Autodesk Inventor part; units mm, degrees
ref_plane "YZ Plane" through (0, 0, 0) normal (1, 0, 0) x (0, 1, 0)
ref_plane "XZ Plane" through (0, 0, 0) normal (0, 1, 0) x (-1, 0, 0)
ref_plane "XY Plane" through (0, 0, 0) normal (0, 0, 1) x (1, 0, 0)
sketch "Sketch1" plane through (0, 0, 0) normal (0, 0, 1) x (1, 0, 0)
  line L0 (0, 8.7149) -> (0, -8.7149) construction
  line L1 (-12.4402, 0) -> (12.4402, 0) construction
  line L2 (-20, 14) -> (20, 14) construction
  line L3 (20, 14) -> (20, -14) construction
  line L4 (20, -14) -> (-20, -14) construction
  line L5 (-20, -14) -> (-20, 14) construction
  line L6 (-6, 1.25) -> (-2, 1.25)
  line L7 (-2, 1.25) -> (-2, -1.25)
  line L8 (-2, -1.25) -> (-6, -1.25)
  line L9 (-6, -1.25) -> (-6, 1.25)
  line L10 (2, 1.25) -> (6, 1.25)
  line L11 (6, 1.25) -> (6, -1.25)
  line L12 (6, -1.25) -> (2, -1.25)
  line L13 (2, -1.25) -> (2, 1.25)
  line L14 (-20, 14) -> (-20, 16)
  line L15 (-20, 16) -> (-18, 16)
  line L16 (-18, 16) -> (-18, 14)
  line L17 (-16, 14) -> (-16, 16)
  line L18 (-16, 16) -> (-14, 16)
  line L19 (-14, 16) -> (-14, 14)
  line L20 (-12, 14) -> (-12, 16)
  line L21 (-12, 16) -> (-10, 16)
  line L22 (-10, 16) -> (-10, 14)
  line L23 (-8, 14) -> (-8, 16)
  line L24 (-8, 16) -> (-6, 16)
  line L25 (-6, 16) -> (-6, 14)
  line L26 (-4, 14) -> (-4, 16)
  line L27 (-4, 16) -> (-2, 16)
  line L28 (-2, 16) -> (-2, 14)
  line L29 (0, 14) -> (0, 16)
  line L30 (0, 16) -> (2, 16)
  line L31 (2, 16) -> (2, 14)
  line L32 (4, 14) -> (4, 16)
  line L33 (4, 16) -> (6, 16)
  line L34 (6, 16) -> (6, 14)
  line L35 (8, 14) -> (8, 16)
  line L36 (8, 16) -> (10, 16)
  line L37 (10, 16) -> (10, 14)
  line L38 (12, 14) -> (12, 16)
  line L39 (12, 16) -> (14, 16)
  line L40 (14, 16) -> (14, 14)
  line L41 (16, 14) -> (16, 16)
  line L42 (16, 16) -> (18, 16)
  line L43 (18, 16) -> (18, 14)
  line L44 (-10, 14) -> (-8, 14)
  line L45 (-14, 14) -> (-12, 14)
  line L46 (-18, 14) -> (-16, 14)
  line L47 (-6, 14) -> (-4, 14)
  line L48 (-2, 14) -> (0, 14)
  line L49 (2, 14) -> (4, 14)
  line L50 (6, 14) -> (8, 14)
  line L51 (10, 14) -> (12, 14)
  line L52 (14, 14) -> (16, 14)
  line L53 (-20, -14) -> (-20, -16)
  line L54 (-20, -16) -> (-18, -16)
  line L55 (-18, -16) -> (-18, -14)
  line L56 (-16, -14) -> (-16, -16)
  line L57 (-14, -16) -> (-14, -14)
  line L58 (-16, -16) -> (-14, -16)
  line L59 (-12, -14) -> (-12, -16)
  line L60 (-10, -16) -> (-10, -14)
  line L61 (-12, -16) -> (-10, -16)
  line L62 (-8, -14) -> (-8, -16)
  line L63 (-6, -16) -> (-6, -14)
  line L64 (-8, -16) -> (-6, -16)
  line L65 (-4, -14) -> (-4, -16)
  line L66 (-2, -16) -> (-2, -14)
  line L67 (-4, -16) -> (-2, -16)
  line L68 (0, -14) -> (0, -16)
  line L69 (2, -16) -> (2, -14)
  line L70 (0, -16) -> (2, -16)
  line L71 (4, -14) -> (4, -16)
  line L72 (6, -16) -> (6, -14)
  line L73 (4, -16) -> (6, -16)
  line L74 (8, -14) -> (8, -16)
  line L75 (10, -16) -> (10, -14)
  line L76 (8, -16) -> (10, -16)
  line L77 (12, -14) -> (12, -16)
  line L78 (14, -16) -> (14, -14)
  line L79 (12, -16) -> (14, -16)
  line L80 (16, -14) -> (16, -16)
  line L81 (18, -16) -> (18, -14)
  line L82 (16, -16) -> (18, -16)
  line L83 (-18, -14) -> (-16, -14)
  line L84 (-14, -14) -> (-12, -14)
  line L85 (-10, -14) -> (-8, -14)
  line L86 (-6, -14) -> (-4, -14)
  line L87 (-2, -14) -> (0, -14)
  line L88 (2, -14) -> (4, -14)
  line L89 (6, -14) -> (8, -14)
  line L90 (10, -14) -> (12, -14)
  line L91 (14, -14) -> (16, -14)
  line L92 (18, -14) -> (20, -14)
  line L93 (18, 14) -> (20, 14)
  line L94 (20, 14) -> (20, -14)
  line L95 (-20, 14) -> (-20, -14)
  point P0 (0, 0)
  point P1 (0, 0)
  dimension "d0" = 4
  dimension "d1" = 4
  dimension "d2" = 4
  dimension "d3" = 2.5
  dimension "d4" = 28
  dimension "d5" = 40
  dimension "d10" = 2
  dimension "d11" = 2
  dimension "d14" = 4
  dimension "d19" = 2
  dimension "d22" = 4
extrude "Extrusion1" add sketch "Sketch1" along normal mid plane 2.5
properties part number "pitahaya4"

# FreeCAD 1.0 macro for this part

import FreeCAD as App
import Part
import Sketcher
Q = App.Units.Quantity

doc = App.newDocument("Part")
params = doc.addObject("Spreadsheet::Sheet", "Params")
for row, (alias, value) in enumerate([
    ("sketch1_width", "2 mm"),
    ("sketch1_height", "28 mm"),
    ("sketch1_height2", "2.5 mm"),
    ("pad1_length", "2.5 mm"),
], start=1):
    params.set(f"A{row}", alias)
    params.set(f"B{row}", "=" + value)
    params.setAlias(f"B{row}", alias)

body = doc.addObject("PartDesign::Body", "Body")

# Sketch on XY plane
sketch1 = body.newObject("Sketcher::SketchObject", "Sketch")
sketch1.AttachmentSupport = (doc.getObject("XY_Plane"), [""])
sketch1.MapMode = "FlatFace"
sketch1.addGeometry([
    Part.LineSegment(App.Vector(-20, 16, 0), App.Vector(-20, -16, 0)),  # 0
    Part.LineSegment(App.Vector(-20, -16, 0), App.Vector(-18, -16, 0)),  # 1
    Part.LineSegment(App.Vector(-18, -16, 0), App.Vector(-18, -14, 0)),  # 2
    Part.LineSegment(App.Vector(-18, -14, 0), App.Vector(-16, -14, 0)),  # 3
    Part.LineSegment(App.Vector(-16, -14, 0), App.Vector(-16, -16, 0)),  # 4
    Part.LineSegment(App.Vector(-16, -16, 0), App.Vector(-14, -16, 0)),  # 5
    Part.LineSegment(App.Vector(-14, -16, 0), App.Vector(-14, -14, 0)),  # 6
    Part.LineSegment(App.Vector(-14, -14, 0), App.Vector(-12, -14, 0)),  # 7
    Part.LineSegment(App.Vector(-12, -14, 0), App.Vector(-12, -16, 0)),  # 8
    Part.LineSegment(App.Vector(-12, -16, 0), App.Vector(-10, -16, 0)),  # 9
    Part.LineSegment(App.Vector(-10, -16, 0), App.Vector(-10, -14, 0)),  # 10
    Part.LineSegment(App.Vector(-10, -14, 0), App.Vector(-8, -14, 0)),  # 11
    Part.LineSegment(App.Vector(-8, -14, 0), App.Vector(-8, -16, 0)),  # 12
    Part.LineSegment(App.Vector(-8, -16, 0), App.Vector(-6, -16, 0)),  # 13
    Part.LineSegment(App.Vector(-6, -16, 0), App.Vector(-6, -14, 0)),  # 14
    Part.LineSegment(App.Vector(-6, -14, 0), App.Vector(-4, -14, 0)),  # 15
    Part.LineSegment(App.Vector(-4, -14, 0), App.Vector(-4, -16, 0)),  # 16
    Part.LineSegment(App.Vector(-4, -16, 0), App.Vector(-2, -16, 0)),  # 17
    Part.LineSegment(App.Vector(-2, -16, 0), App.Vector(-2, -14, 0)),  # 18
    Part.LineSegment(App.Vector(-2, -14, 0), App.Vector(0, -14, 0)),  # 19
    Part.LineSegment(App.Vector(0, -14, 0), App.Vector(0, -16, 0)),  # 20
    Part.LineSegment(App.Vector(0, -16, 0), App.Vector(2, -16, 0)),  # 21
    Part.LineSegment(App.Vector(2, -16, 0), App.Vector(2, -14, 0)),  # 22
    Part.LineSegment(App.Vector(2, -14, 0), App.Vector(4, -14, 0)),  # 23
    Part.LineSegment(App.Vector(4, -14, 0), App.Vector(4, -16, 0)),  # 24
    Part.LineSegment(App.Vector(4, -16, 0), App.Vector(6, -16, 0)),  # 25
    Part.LineSegment(App.Vector(6, -16, 0), App.Vector(6, -14, 0)),  # 26
    Part.LineSegment(App.Vector(6, -14, 0), App.Vector(8, -14, 0)),  # 27
    Part.LineSegment(App.Vector(8, -14, 0), App.Vector(8, -16, 0)),  # 28
    Part.LineSegment(App.Vector(8, -16, 0), App.Vector(10, -16, 0)),  # 29
    Part.LineSegment(App.Vector(10, -16, 0), App.Vector(10, -14, 0)),  # 30
    Part.LineSegment(App.Vector(10, -14, 0), App.Vector(12, -14, 0)),  # 31
    Part.LineSegment(App.Vector(12, -14, 0), App.Vector(12, -16, 0)),  # 32
    Part.LineSegment(App.Vector(12, -16, 0), App.Vector(14, -16, 0)),  # 33
    Part.LineSegment(App.Vector(14, -16, 0), App.Vector(14, -14, 0)),  # 34
    Part.LineSegment(App.Vector(14, -14, 0), App.Vector(16, -14, 0)),  # 35
    Part.LineSegment(App.Vector(16, -14, 0), App.Vector(16, -16, 0)),  # 36
    Part.LineSegment(App.Vector(16, -16, 0), App.Vector(18, -16, 0)),  # 37
    Part.LineSegment(App.Vector(18, -16, 0), App.Vector(18, -14, 0)),  # 38
    Part.LineSegment(App.Vector(18, -14, 0), App.Vector(20, -14, 0)),  # 39
    Part.LineSegment(App.Vector(20, -14, 0), App.Vector(20, 14, 0)),  # 40
    Part.LineSegment(App.Vector(20, 14, 0), App.Vector(18, 14, 0)),  # 41
    Part.LineSegment(App.Vector(18, 14, 0), App.Vector(18, 16, 0)),  # 42
    Part.LineSegment(App.Vector(18, 16, 0), App.Vector(16, 16, 0)),  # 43
    Part.LineSegment(App.Vector(16, 16, 0), App.Vector(16, 14, 0)),  # 44
    Part.LineSegment(App.Vector(16, 14, 0), App.Vector(14, 14, 0)),  # 45
    Part.LineSegment(App.Vector(14, 14, 0), App.Vector(14, 16, 0)),  # 46
    Part.LineSegment(App.Vector(14, 16, 0), App.Vector(12, 16, 0)),  # 47
    Part.LineSegment(App.Vector(12, 16, 0), App.Vector(12, 14, 0)),  # 48
    Part.LineSegment(App.Vector(12, 14, 0), App.Vector(10, 14, 0)),  # 49
    Part.LineSegment(App.Vector(10, 14, 0), App.Vector(10, 16, 0)),  # 50
    Part.LineSegment(App.Vector(10, 16, 0), App.Vector(8, 16, 0)),  # 51
    Part.LineSegment(App.Vector(8, 16, 0), App.Vector(8, 14, 0)),  # 52
    Part.LineSegment(App.Vector(8, 14, 0), App.Vector(6, 14, 0)),  # 53
    Part.LineSegment(App.Vector(6, 14, 0), App.Vector(6, 16, 0)),  # 54
    Part.LineSegment(App.Vector(6, 16, 0), App.Vector(4, 16, 0)),  # 55
    Part.LineSegment(App.Vector(4, 16, 0), App.Vector(4, 14, 0)),  # 56
    Part.LineSegment(App.Vector(4, 14, 0), App.Vector(2, 14, 0)),  # 57
    Part.LineSegment(App.Vector(2, 14, 0), App.Vector(2, 16, 0)),  # 58
    Part.LineSegment(App.Vector(2, 16, 0), App.Vector(0, 16, 0)),  # 59
    Part.LineSegment(App.Vector(0, 16, 0), App.Vector(0, 14, 0)),  # 60
    Part.LineSegment(App.Vector(0, 14, 0), App.Vector(-2, 14, 0)),  # 61
    Part.LineSegment(App.Vector(-2, 14, 0), App.Vector(-2, 16, 0)),  # 62
    Part.LineSegment(App.Vector(-2, 16, 0), App.Vector(-4, 16, 0)),  # 63
    Part.LineSegment(App.Vector(-4, 16, 0), App.Vector(-4, 14, 0)),  # 64
    Part.LineSegment(App.Vector(-4, 14, 0), App.Vector(-6, 14, 0)),  # 65
    Part.LineSegment(App.Vector(-6, 14, 0), App.Vector(-6, 16, 0)),  # 66
    Part.LineSegment(App.Vector(-6, 16, 0), App.Vector(-8, 16, 0)),  # 67
    Part.LineSegment(App.Vector(-8, 16, 0), App.Vector(-8, 14, 0)),  # 68
    Part.LineSegment(App.Vector(-8, 14, 0), App.Vector(-10, 14, 0)),  # 69
    Part.LineSegment(App.Vector(-10, 14, 0), App.Vector(-10, 16, 0)),  # 70
    Part.LineSegment(App.Vector(-10, 16, 0), App.Vector(-12, 16, 0)),  # 71
    Part.LineSegment(App.Vector(-12, 16, 0), App.Vector(-12, 14, 0)),  # 72
    Part.LineSegment(App.Vector(-12, 14, 0), App.Vector(-14, 14, 0)),  # 73
    Part.LineSegment(App.Vector(-14, 14, 0), App.Vector(-14, 16, 0)),  # 74
    Part.LineSegment(App.Vector(-14, 16, 0), App.Vector(-16, 16, 0)),  # 75
    Part.LineSegment(App.Vector(-16, 16, 0), App.Vector(-16, 14, 0)),  # 76
    Part.LineSegment(App.Vector(-16, 14, 0), App.Vector(-18, 14, 0)),  # 77
    Part.LineSegment(App.Vector(-18, 14, 0), App.Vector(-18, 16, 0)),  # 78
    Part.LineSegment(App.Vector(-18, 16, 0), App.Vector(-20, 16, 0)),  # 79
    Part.LineSegment(App.Vector(-6, -1.2, 0), App.Vector(-6, 1.2, 0)),  # 80
    Part.LineSegment(App.Vector(-6, 1.2, 0), App.Vector(-2, 1.2, 0)),  # 81
    Part.LineSegment(App.Vector(-2, 1.2, 0), App.Vector(-2, -1.2, 0)),  # 82
    Part.LineSegment(App.Vector(-2, -1.2, 0), App.Vector(-6, -1.2, 0)),  # 83
    Part.LineSegment(App.Vector(2, -1.2, 0), App.Vector(2, 1.2, 0)),  # 84
    Part.LineSegment(App.Vector(2, 1.2, 0), App.Vector(6, 1.2, 0)),  # 85
    Part.LineSegment(App.Vector(6, 1.2, 0), App.Vector(6, -1.2, 0)),  # 86
    Part.LineSegment(App.Vector(6, -1.2, 0), App.Vector(2, -1.2, 0)),  # 87
], False)
sketch1.addConstraint([
    Sketcher.Constraint("Coincident", 0, 2, 1, 1),
    Sketcher.Constraint("Coincident", 1, 2, 2, 1),
    Sketcher.Constraint("Coincident", 2, 2, 3, 1),
    Sketcher.Constraint("Coincident", 3, 2, 4, 1),
    Sketcher.Constraint("Coincident", 4, 2, 5, 1),
    Sketcher.Constraint("Coincident", 5, 2, 6, 1),
    Sketcher.Constraint("Coincident", 6, 2, 7, 1),
    Sketcher.Constraint("Coincident", 7, 2, 8, 1),
    Sketcher.Constraint("Coincident", 8, 2, 9, 1),
    Sketcher.Constraint("Coincident", 9, 2, 10, 1),
    Sketcher.Constraint("Coincident", 10, 2, 11, 1),
    Sketcher.Constraint("Coincident", 11, 2, 12, 1),
    Sketcher.Constraint("Coincident", 12, 2, 13, 1),
    Sketcher.Constraint("Coincident", 13, 2, 14, 1),
    Sketcher.Constraint("Coincident", 14, 2, 15, 1),
    Sketcher.Constraint("Coincident", 15, 2, 16, 1),
    Sketcher.Constraint("Coincident", 16, 2, 17, 1),
    Sketcher.Constraint("Coincident", 17, 2, 18, 1),
    Sketcher.Constraint("Coincident", 18, 2, 19, 1),
    Sketcher.Constraint("Coincident", 19, 2, 20, 1),
    Sketcher.Constraint("Coincident", 20, 2, 21, 1),
    Sketcher.Constraint("Coincident", 21, 2, 22, 1),
    Sketcher.Constraint("Coincident", 22, 2, 23, 1),
    Sketcher.Constraint("Coincident", 23, 2, 24, 1),
    Sketcher.Constraint("Coincident", 24, 2, 25, 1),
    Sketcher.Constraint("Coincident", 25, 2, 26, 1),
    Sketcher.Constraint("Coincident", 26, 2, 27, 1),
    Sketcher.Constraint("Coincident", 27, 2, 28, 1),
    Sketcher.Constraint("Coincident", 28, 2, 29, 1),
    Sketcher.Constraint("Coincident", 29, 2, 30, 1),
    Sketcher.Constraint("Coincident", 30, 2, 31, 1),
    Sketcher.Constraint("Coincident", 31, 2, 32, 1),
    Sketcher.Constraint("Coincident", 32, 2, 33, 1),
    Sketcher.Constraint("Coincident", 33, 2, 34, 1),
    Sketcher.Constraint("Coincident", 34, 2, 35, 1),
    Sketcher.Constraint("Coincident", 35, 2, 36, 1),
    Sketcher.Constraint("Coincident", 36, 2, 37, 1),
    Sketcher.Constraint("Coincident", 37, 2, 38, 1),
    Sketcher.Constraint("Coincident", 38, 2, 39, 1),
    Sketcher.Constraint("Coincident", 39, 2, 40, 1),
    Sketcher.Constraint("Coincident", 40, 2, 41, 1),
    Sketcher.Constraint("Coincident", 41, 2, 42, 1),
    Sketcher.Constraint("Coincident", 42, 2, 43, 1),
    Sketcher.Constraint("Coincident", 43, 2, 44, 1),
    Sketcher.Constraint("Coincident", 44, 2, 45, 1),
    Sketcher.Constraint("Coincident", 45, 2, 46, 1),
    Sketcher.Constraint("Coincident", 46, 2, 47, 1),
    Sketcher.Constraint("Coincident", 47, 2, 48, 1),
    Sketcher.Constraint("Coincident", 48, 2, 49, 1),
    Sketcher.Constraint("Coincident", 49, 2, 50, 1),
    Sketcher.Constraint("Coincident", 50, 2, 51, 1),
    Sketcher.Constraint("Coincident", 51, 2, 52, 1),
    Sketcher.Constraint("Coincident", 52, 2, 53, 1),
    Sketcher.Constraint("Coincident", 53, 2, 54, 1),
    Sketcher.Constraint("Coincident", 54, 2, 55, 1),
    Sketcher.Constraint("Coincident", 55, 2, 56, 1),
    Sketcher.Constraint("Coincident", 56, 2, 57, 1),
    Sketcher.Constraint("Coincident", 57, 2, 58, 1),
    Sketcher.Constraint("Coincident", 58, 2, 59, 1),
    Sketcher.Constraint("Coincident", 59, 2, 60, 1),
    Sketcher.Constraint("Coincident", 60, 2, 61, 1),
    Sketcher.Constraint("Coincident", 61, 2, 62, 1),
    Sketcher.Constraint("Coincident", 62, 2, 63, 1),
    Sketcher.Constraint("Coincident", 63, 2, 64, 1),
    Sketcher.Constraint("Coincident", 64, 2, 65, 1),
    Sketcher.Constraint("Coincident", 65, 2, 66, 1),
    Sketcher.Constraint("Coincident", 66, 2, 67, 1),
    Sketcher.Constraint("Coincident", 67, 2, 68, 1),
    Sketcher.Constraint("Coincident", 68, 2, 69, 1),
    Sketcher.Constraint("Coincident", 69, 2, 70, 1),
    Sketcher.Constraint("Coincident", 70, 2, 71, 1),
    Sketcher.Constraint("Coincident", 71, 2, 72, 1),
    Sketcher.Constraint("Coincident", 72, 2, 73, 1),
    Sketcher.Constraint("Coincident", 73, 2, 74, 1),
    Sketcher.Constraint("Coincident", 74, 2, 75, 1),
    Sketcher.Constraint("Coincident", 75, 2, 76, 1),
    Sketcher.Constraint("Coincident", 76, 2, 77, 1),
    Sketcher.Constraint("Coincident", 77, 2, 78, 1),
    Sketcher.Constraint("Coincident", 78, 2, 79, 1),
    Sketcher.Constraint("Coincident", 79, 2, 0, 1),
    Sketcher.Constraint("Coincident", 80, 2, 81, 1),
    Sketcher.Constraint("Coincident", 81, 2, 82, 1),
    Sketcher.Constraint("Coincident", 82, 2, 83, 1),
    Sketcher.Constraint("Coincident", 83, 2, 80, 1),
    Sketcher.Constraint("Coincident", 84, 2, 85, 1),
    Sketcher.Constraint("Coincident", 85, 2, 86, 1),
    Sketcher.Constraint("Coincident", 86, 2, 87, 1),
    Sketcher.Constraint("Coincident", 87, 2, 84, 1),
    Sketcher.Constraint("Vertical", 0),
    Sketcher.Constraint("Horizontal", 1),
    Sketcher.Constraint("Vertical", 2),
    Sketcher.Constraint("Horizontal", 3),
    Sketcher.Constraint("Vertical", 4),
    Sketcher.Constraint("Horizontal", 5),
    Sketcher.Constraint("Vertical", 6),
    Sketcher.Constraint("Horizontal", 7),
    Sketcher.Constraint("Vertical", 8),
    Sketcher.Constraint("Horizontal", 9),
    Sketcher.Constraint("Vertical", 10),
    Sketcher.Constraint("Horizontal", 11),
    Sketcher.Constraint("Vertical", 12),
    Sketcher.Constraint("Horizontal", 13),
    Sketcher.Constraint("Vertical", 14),
    Sketcher.Constraint("Horizontal", 15),
    Sketcher.Constraint("Vertical", 16),
    Sketcher.Constraint("Horizontal", 17),
    Sketcher.Constraint("Vertical", 18),
    Sketcher.Constraint("Horizontal", 19),
    Sketcher.Constraint("Vertical", 20),
    Sketcher.Constraint("Horizontal", 21),
    Sketcher.Constraint("Vertical", 22),
    Sketcher.Constraint("Horizontal", 23),
    Sketcher.Constraint("Vertical", 24),
    Sketcher.Constraint("Horizontal", 25),
    Sketcher.Constraint("Vertical", 26),
    Sketcher.Constraint("Horizontal", 27),
    Sketcher.Constraint("Vertical", 28),
    Sketcher.Constraint("Horizontal", 29),
    Sketcher.Constraint("Vertical", 30),
    Sketcher.Constraint("Horizontal", 31),
    Sketcher.Constraint("Vertical", 32),
    Sketcher.Constraint("Horizontal", 33),
    Sketcher.Constraint("Vertical", 34),
    Sketcher.Constraint("Horizontal", 35),
    Sketcher.Constraint("Vertical", 36),
    Sketcher.Constraint("Horizontal", 37),
    Sketcher.Constraint("Vertical", 38),
    Sketcher.Constraint("Horizontal", 39),
    Sketcher.Constraint("Vertical", 40),
    Sketcher.Constraint("Horizontal", 41),
    Sketcher.Constraint("Vertical", 42),
    Sketcher.Constraint("Horizontal", 43),
    Sketcher.Constraint("Vertical", 44),
    Sketcher.Constraint("Horizontal", 45),
    Sketcher.Constraint("Vertical", 46),
    Sketcher.Constraint("Horizontal", 47),
    Sketcher.Constraint("Vertical", 48),
    Sketcher.Constraint("Horizontal", 49),
    Sketcher.Constraint("Vertical", 50),
    Sketcher.Constraint("Horizontal", 51),
    Sketcher.Constraint("Vertical", 52),
    Sketcher.Constraint("Horizontal", 53),
    Sketcher.Constraint("Vertical", 54),
    Sketcher.Constraint("Horizontal", 55),
    Sketcher.Constraint("Vertical", 56),
    Sketcher.Constraint("Horizontal", 57),
    Sketcher.Constraint("Vertical", 58),
    Sketcher.Constraint("Horizontal", 59),
    Sketcher.Constraint("Vertical", 60),
    Sketcher.Constraint("Horizontal", 61),
    Sketcher.Constraint("Vertical", 62),
    Sketcher.Constraint("Horizontal", 63),
    Sketcher.Constraint("Vertical", 64),
    Sketcher.Constraint("Horizontal", 65),
    Sketcher.Constraint("Vertical", 66),
    Sketcher.Constraint("Horizontal", 67),
    Sketcher.Constraint("Vertical", 68),
    Sketcher.Constraint("Horizontal", 69),
    Sketcher.Constraint("Vertical", 70),
    Sketcher.Constraint("Horizontal", 71),
    Sketcher.Constraint("Vertical", 72),
    Sketcher.Constraint("Horizontal", 73),
    Sketcher.Constraint("Vertical", 74),
    Sketcher.Constraint("Horizontal", 75),
    Sketcher.Constraint("Vertical", 76),
    Sketcher.Constraint("Horizontal", 77),
    Sketcher.Constraint("Vertical", 78),
    Sketcher.Constraint("Horizontal", 79),
    Sketcher.Constraint("Vertical", 80),
    Sketcher.Constraint("Horizontal", 81),
    Sketcher.Constraint("Vertical", 82),
    Sketcher.Constraint("Horizontal", 83),
    Sketcher.Constraint("Vertical", 84),
    Sketcher.Constraint("Horizontal", 85),
    Sketcher.Constraint("Vertical", 86),
    Sketcher.Constraint("Horizontal", 87),
    Sketcher.Constraint("Symmetric", 2, 2, 41, 2, -1, 1),
    Sketcher.Constraint("Symmetric", 4, 2, 43, 2, -1, 1),
    Sketcher.Constraint("Symmetric", 6, 2, 45, 2, -1, 1),
    Sketcher.Constraint("Symmetric", 8, 2, 47, 2, -1, 1),
    Sketcher.Constraint("Symmetric", 10, 2, 49, 2, -1, 1),
    Sketcher.Constraint("Symmetric", 12, 2, 51, 2, -1, 1),
    Sketcher.Constraint("Symmetric", 14, 2, 53, 2, -1, 1),
    Sketcher.Constraint("Symmetric", 16, 2, 55, 2, -1, 1),
    Sketcher.Constraint("Symmetric", 18, 2, 57, 2, -1, 1),
    Sketcher.Constraint("Symmetric", 20, 2, 59, 2, -1, 1),
    Sketcher.Constraint("Symmetric", 22, 2, 61, 2, -1, 1),
    Sketcher.Constraint("Symmetric", 24, 2, 63, 2, -1, 1),
    Sketcher.Constraint("Symmetric", 26, 2, 65, 2, -1, 1),
    Sketcher.Constraint("Symmetric", 28, 2, 67, 2, -1, 1),
    Sketcher.Constraint("Symmetric", 30, 2, 69, 2, -1, 1),
    Sketcher.Constraint("Symmetric", 32, 2, 71, 2, -1, 1),
    Sketcher.Constraint("Symmetric", 34, 2, 73, 2, -1, 1),
    Sketcher.Constraint("Symmetric", 36, 2, 75, 2, -1, 1),
    Sketcher.Constraint("Symmetric", 38, 2, 77, 2, -1, 1),
    Sketcher.Constraint("Symmetric", 82, 2, 84, 2, -1, 1),
    Sketcher.Constraint("Symmetric", 80, 2, 86, 2, -1, 1),
    Sketcher.Constraint("Symmetric", 17, 2, 21, 2, -2),
    Sketcher.Constraint("Symmetric", 15, 2, 23, 2, -2),
    Sketcher.Constraint("Symmetric", 13, 2, 25, 2, -2),
    Sketcher.Constraint("Symmetric", 11, 2, 27, 2, -2),
    Sketcher.Constraint("Symmetric", 9, 2, 29, 2, -2),
    Sketcher.Constraint("Symmetric", 7, 2, 31, 2, -2),
    Sketcher.Constraint("Symmetric", 5, 2, 33, 2, -2),
    Sketcher.Constraint("Symmetric", 3, 2, 35, 2, -2),
    Sketcher.Constraint("Symmetric", 1, 2, 37, 2, -2),
    Sketcher.Constraint("Symmetric", 19, 2, 60, 2, -1),
    Sketcher.Constraint("Horizontal", 1, 2, 4, 2),
    Sketcher.Constraint("Horizontal", 3, 2, 6, 2),
    Sketcher.Constraint("Horizontal", 5, 2, 8, 2),
    Sketcher.Constraint("Horizontal", 7, 2, 10, 2),
    Sketcher.Constraint("Horizontal", 9, 2, 12, 2),
    Sketcher.Constraint("Horizontal", 11, 2, 14, 2),
    Sketcher.Constraint("Horizontal", 13, 2, 16, 2),
    Sketcher.Constraint("Horizontal", 35, 2, 38, 2),
    Sketcher.Constraint("Horizontal", 75, 2, 78, 2),
    Sketcher.Constraint("Horizontal", 81, 2, 84, 2),
    Sketcher.Constraint("Vertical", 66, 2, 80, 2),
    Sketcher.Constraint("Vertical", 62, 2, 81, 2),
    Sketcher.Constraint("Equal", 1, 3),
    Sketcher.Constraint("Equal", 3, 5),
    Sketcher.Constraint("Equal", 5, 7),
    Sketcher.Constraint("Equal", 7, 9),
    Sketcher.Constraint("Equal", 9, 11),
    Sketcher.Constraint("Equal", 11, 13),
    Sketcher.Constraint("Equal", 13, 15),
    Sketcher.Constraint("Equal", 15, 17),
    Sketcher.Constraint("Equal", 17, 19),
    Sketcher.Constraint("Equal", 37, 39),
    Sketcher.Constraint("Equal", 79, 2),
    Sketcher.Constraint("DistanceX", 1, 1, 1, 2, Q("2 mm")),
    Sketcher.Constraint("DistanceY", 40, 1, 40, 2, Q("28 mm")),
    Sketcher.Constraint("DistanceY", 80, 1, 80, 2, Q("2.5 mm")),
])
sketch1.setExpression("Constraints[230]", "Params.sketch1_width")
sketch1.setExpression("Constraints[231]", "Params.sketch1_height")
sketch1.setExpression("Constraints[232]", "Params.sketch1_height2")
pad1 = body.newObject("PartDesign::Pad", "Pad")
pad1.Profile = sketch1
pad1.setExpression("Length", "Params.pad1_length")
pad1.Midplane = True

doc.recompute()
